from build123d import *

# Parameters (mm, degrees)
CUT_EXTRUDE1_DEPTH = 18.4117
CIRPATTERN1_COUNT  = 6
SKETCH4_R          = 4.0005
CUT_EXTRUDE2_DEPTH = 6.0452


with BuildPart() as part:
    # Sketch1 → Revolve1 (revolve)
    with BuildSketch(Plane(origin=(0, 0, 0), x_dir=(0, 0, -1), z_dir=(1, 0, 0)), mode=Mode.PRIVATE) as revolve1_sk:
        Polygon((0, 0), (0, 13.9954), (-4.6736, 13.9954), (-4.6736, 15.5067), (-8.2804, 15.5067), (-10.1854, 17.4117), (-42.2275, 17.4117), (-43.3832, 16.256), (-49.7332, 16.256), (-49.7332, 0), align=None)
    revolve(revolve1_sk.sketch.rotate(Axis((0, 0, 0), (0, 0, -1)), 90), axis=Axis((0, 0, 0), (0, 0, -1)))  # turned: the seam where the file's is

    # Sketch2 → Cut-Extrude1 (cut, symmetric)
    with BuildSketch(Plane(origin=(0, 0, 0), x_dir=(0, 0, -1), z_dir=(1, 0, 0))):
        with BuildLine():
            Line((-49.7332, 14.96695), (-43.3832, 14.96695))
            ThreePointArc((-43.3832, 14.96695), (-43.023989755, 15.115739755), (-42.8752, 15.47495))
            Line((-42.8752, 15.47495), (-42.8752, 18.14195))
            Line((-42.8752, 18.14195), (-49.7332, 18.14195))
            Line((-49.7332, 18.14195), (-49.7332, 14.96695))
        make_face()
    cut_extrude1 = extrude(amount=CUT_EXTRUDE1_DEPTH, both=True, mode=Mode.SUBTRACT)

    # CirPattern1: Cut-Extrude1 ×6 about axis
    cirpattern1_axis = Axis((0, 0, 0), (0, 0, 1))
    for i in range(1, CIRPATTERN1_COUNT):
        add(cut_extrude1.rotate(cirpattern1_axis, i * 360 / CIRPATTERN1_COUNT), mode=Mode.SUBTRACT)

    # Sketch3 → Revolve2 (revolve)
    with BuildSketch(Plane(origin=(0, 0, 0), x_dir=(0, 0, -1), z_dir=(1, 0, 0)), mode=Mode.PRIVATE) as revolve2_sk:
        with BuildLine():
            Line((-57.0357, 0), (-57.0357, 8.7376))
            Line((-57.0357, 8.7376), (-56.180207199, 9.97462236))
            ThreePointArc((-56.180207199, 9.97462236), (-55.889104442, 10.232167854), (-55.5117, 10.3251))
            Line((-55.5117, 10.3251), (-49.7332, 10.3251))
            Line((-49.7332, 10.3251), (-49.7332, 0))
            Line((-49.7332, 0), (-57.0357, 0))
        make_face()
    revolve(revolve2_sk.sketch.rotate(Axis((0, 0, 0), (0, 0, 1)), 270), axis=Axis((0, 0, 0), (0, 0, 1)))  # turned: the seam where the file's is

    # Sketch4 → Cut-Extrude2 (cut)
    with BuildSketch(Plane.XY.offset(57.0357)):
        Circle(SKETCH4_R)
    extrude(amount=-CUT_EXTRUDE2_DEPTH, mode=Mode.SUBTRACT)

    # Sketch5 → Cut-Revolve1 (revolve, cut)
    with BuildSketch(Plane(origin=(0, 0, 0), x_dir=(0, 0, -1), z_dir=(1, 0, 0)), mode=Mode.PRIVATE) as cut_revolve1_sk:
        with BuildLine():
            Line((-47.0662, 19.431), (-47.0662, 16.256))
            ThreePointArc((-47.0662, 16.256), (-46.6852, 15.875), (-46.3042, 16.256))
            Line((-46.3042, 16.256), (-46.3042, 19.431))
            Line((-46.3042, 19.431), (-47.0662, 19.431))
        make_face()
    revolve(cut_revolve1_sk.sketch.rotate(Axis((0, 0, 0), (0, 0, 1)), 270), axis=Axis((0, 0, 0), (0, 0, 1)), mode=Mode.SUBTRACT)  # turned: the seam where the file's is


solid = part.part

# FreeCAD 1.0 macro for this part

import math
import FreeCAD as App
import Part
import Sketcher

V = App.Vector
Q = App.Units.Quantity

doc = App.newDocument("Part")
params = doc.addObject("Spreadsheet::Sheet", "Params")
for row, (alias, value) in enumerate([
    ("sketch1_width", "0.64 in"),
    ("sketch1_height", "0.25 in"),
    ("sketch1_width2", "0.551 in"),
    ("sketch1_height2", "0.184 in"),
    ("sketch1_height3", "0.142 in"),
    ("revolution_angle", "360 deg"),
    ("sketch2_radius", "0.02 in"),
    ("sketch2_height", "0.25 in"),
    ("sketch2_width", "0.105 in"),
    ("pocket1_length", "36.8234 mm"),
    ("sketch3_radius", "0.032 in"),
    ("sketch3_width", "0.344 in"),
    ("revolution2_angle", "360 deg"),
    ("sketch4_diameter", "0.315 in"),
    ("pocket2_length", "0.238 in"),
    ("sketch5_radius", "0.015 in"),
    ("sketch5_width", "0.125 in"),
    ("groove_angle", "360 deg"),
], start=1):
    params.set(f"A{row}", alias)
    params.set(f"B{row}", "=" + value)
    params.setAlias(f"B{row}", alias)

body = doc.addObject("PartDesign::Body", "Body")

# Sketch on YZ plane
sketch1 = body.newObject("Sketcher::SketchObject", "Sketch")
sketch1.AttachmentSupport = (doc.getObject("YZ_Plane"), [""])
sketch1.MapMode = "FlatFace"
sketch1.addGeometry([
    Part.LineSegment(V(0, 0, 0), V(14, 0, 0)),  # 0
    Part.LineSegment(V(14, 0, 0), V(14, 4.7, 0)),  # 1
    Part.LineSegment(V(14, 4.7, 0), V(15.5, 4.7, 0)),  # 2
    Part.LineSegment(V(15.5, 4.7, 0), V(15.5, 8.3, 0)),  # 3
    Part.LineSegment(V(15.5, 8.3, 0), V(17.4, 10.2, 0)),  # 4
    Part.LineSegment(V(17.4, 10.2, 0), V(17.4, 42.2, 0)),  # 5
    Part.LineSegment(V(17.4, 42.2, 0), V(16.3, 43.4, 0)),  # 6
    Part.LineSegment(V(16.3, 43.4, 0), V(16.3, 49.7, 0)),  # 7
    Part.LineSegment(V(16.3, 49.7, 0), V(0, 49.7, 0)),  # 8
    Part.LineSegment(V(0, 49.7, 0), V(0, 0, 0)),  # 9
], False)
sketch1.addConstraint([
    Sketcher.Constraint("Coincident", 0, 2, 1, 1),
    Sketcher.Constraint("Coincident", 1, 2, 2, 1),
    Sketcher.Constraint("Coincident", 2, 2, 3, 1),
    Sketcher.Constraint("Coincident", 3, 2, 4, 1),
    Sketcher.Constraint("Coincident", 4, 2, 5, 1),
    Sketcher.Constraint("Coincident", 5, 2, 6, 1),
    Sketcher.Constraint("Coincident", 6, 2, 7, 1),
    Sketcher.Constraint("Coincident", 7, 2, 8, 1),
    Sketcher.Constraint("Coincident", 8, 2, 9, 1),
    Sketcher.Constraint("Coincident", 9, 2, 0, 1),
    Sketcher.Constraint("Horizontal", 0),
    Sketcher.Constraint("Vertical", 1),
    Sketcher.Constraint("Horizontal", 2),
    Sketcher.Constraint("Vertical", 3),
    Sketcher.Constraint("Vertical", 5),
    Sketcher.Constraint("Vertical", 7),
    Sketcher.Constraint("Horizontal", 8),
    Sketcher.Constraint("Vertical", 9),
    Sketcher.Constraint("Coincident", 9, 2, -1, 1),
    Sketcher.Constraint("Perpendicular", 4, 6),
    Sketcher.Constraint("Angle", 4, Q("45 deg")),
    Sketcher.Constraint("DistanceX", 8, 2, 8, 1, Q("0.64 in")),
    Sketcher.Constraint("DistanceY", 7, 1, 7, 2, Q("0.25 in")),
    Sketcher.Constraint("DistanceX", 0, 1, 0, 2, Q("0.551 in")),
    Sketcher.Constraint("DistanceY", 1, 1, 1, 2, Q("0.184 in")),
    Sketcher.Constraint("DistanceY", 3, 1, 3, 2, Q("0.142 in")),
    Sketcher.Constraint("DistanceY", 9, 2, 9, 1, Q("1.958 in")),
    Sketcher.Constraint("DistanceX", 2, 1, 2, 2, Q("0.0595 in")),
    Sketcher.Constraint("DistanceY", 5, 1, 5, 2, Q("1.2615 in")),
])
sketch1.setExpression("Constraints[21]", "Params.sketch1_width")
sketch1.setExpression("Constraints[22]", "Params.sketch1_height")
sketch1.setExpression("Constraints[23]", "Params.sketch1_width2")
sketch1.setExpression("Constraints[24]", "Params.sketch1_height2")
sketch1.setExpression("Constraints[25]", "Params.sketch1_height3")
revolution = body.newObject("PartDesign::Revolution", "Revolution")
revolution.Profile = sketch1
revolution.ReferenceAxis = (sketch1, ["V_Axis"])
revolution.setExpression("Angle", "Params.revolution_angle")

# Sketch on YZ plane
sketch2 = body.newObject("Sketcher::SketchObject", "Sketch001")
sketch2.AttachmentSupport = (doc.getObject("YZ_Plane"), [""])
sketch2.MapMode = "FlatFace"
sketch2.addGeometry([
    Part.LineSegment(V(15, 49.7, 0), V(15, 43.4, 0)),  # 0
    Part.ArcOfCircle(Part.Circle(V(15.5, 43.4, 0), V(0, 0, 1), 0.5), math.radians(180), math.radians(270)),  # 1
    Part.LineSegment(V(15.5, 42.9, 0), V(18.1, 42.9, 0)),  # 2
    Part.LineSegment(V(18.1, 42.9, 0), V(18.1, 49.7, 0)),  # 3
    Part.LineSegment(V(18.1, 49.7, 0), V(15, 49.7, 0)),  # 4
], False)
sketch2.addConstraint([
    Sketcher.Constraint("Tangent", 0, 2, 1, 1),
    Sketcher.Constraint("Tangent", 1, 2, 2, 1),
    Sketcher.Constraint("Coincident", 2, 2, 3, 1),
    Sketcher.Constraint("Coincident", 3, 2, 4, 1),
    Sketcher.Constraint("Coincident", 4, 2, 0, 1),
    Sketcher.Constraint("Vertical", 0),
    Sketcher.Constraint("Horizontal", 2),
    Sketcher.Constraint("Vertical", 3),
    Sketcher.Constraint("Horizontal", 4),
    Sketcher.Constraint("Radius", 1, Q("0.02 in")),
    Sketcher.Constraint("DistanceY", 0, 2, 0, 1, Q("0.25 in")),
    Sketcher.Constraint("DistanceX", 2, 1, 2, 2, Q("0.105 in")),
    Sketcher.Constraint("DistanceY", -1, 1, 1, 3, Q("1.708 in")),
    Sketcher.Constraint("DistanceX", -1, 1, 1, 3, 15.47495),
])
sketch2.setExpression("Constraints[9]", "Params.sketch2_radius")
sketch2.setExpression("Constraints[10]", "Params.sketch2_height")
sketch2.setExpression("Constraints[11]", "Params.sketch2_width")
pocket1 = body.newObject("PartDesign::Pocket", "Pocket")
pocket1.Profile = sketch2
pocket1.setExpression("Length", "Params.pocket1_length")
pocket1.Midplane = True
doc.recompute()

polarpattern = body.newObject("PartDesign::PolarPattern", "PolarPattern")
polarpattern.Originals = [pocket1]
polarpattern.Axis = (doc.getObject("Z_Axis"), [""])
polarpattern.Angle = 360
polarpattern.Occurrences = 6
body.Tip = polarpattern

# Sketch on YZ plane
sketch3 = body.newObject("Sketcher::SketchObject", "Sketch002")
sketch3.AttachmentSupport = (doc.getObject("YZ_Plane"), [""])
sketch3.MapMode = "FlatFace"
sketch3.addGeometry([
    Part.LineSegment(V(8.7, 57, 0), V(0, 57, 0)),  # 0
    Part.LineSegment(V(0, 57, 0), V(0, 49.7, 0)),  # 1
    Part.LineSegment(V(0, 49.7, 0), V(10.3, 49.7, 0)),  # 2
    Part.LineSegment(V(10.3, 49.7, 0), V(10.3, 55.5, 0)),  # 3
    Part.ArcOfCircle(Part.Circle(V(9.5, 55.5, 0), V(0, 0, 1), 0.8), math.radians(0), math.radians(55)),  # 4
    Part.LineSegment(V(10, 56.2, 0), V(8.7, 57, 0)),  # 5
], False)
sketch3.addConstraint([
    Sketcher.Constraint("Coincident", 0, 2, 1, 1),
    Sketcher.Constraint("Coincident", 1, 2, 2, 1),
    Sketcher.Constraint("Coincident", 2, 2, 3, 1),
    Sketcher.Constraint("Tangent", 3, 2, 4, 1),
    Sketcher.Constraint("Tangent", 4, 2, 5, 1),
    Sketcher.Constraint("Coincident", 5, 2, 0, 1),
    Sketcher.Constraint("Horizontal", 0),
    Sketcher.Constraint("Vertical", 1),
    Sketcher.Constraint("Horizontal", 2),
    Sketcher.Constraint("Vertical", 3),
    Sketcher.Constraint("PointOnObject", 0, 2, -2),
    Sketcher.Constraint("Radius", 4, Q("0.032 in")),
    Sketcher.Constraint("DistanceX", 0, 2, 0, 1, Q("0.344 in")),
    Sketcher.Constraint("DistanceY", 4, 3, 0, 2, Q("0.06 in")),
    Sketcher.Constraint("DistanceX", 2, 1, 2, 2, Q("0.4065 in")),
    Sketcher.Constraint("DistanceY", 1, 2, 1, 1, Q("0.2875 in")),
    Sketcher.Constraint("DistanceY", -1, 1, 1, 2, Q("1.958 in")),
])
sketch3.setExpression("Constraints[11]", "Params.sketch3_radius")
sketch3.setExpression("Constraints[12]", "Params.sketch3_width")
revolution2 = body.newObject("PartDesign::Revolution", "Revolution001")
revolution2.Profile = sketch3
revolution2.ReferenceAxis = (sketch3, ["V_Axis"])
revolution2.setExpression("Angle", "Params.revolution2_angle")

# Sketch on XY plane
sketch4 = body.newObject("Sketcher::SketchObject", "Sketch003")
sketch4.AttachmentSupport = (doc.getObject("XY_Plane"), [""])
sketch4.MapMode = "FlatFace"
sketch4.AttachmentOffset = App.Placement(V(0, 0, 2.2455 * 25.4), App.Rotation())
sketch4.addGeometry(Part.Circle(V(0, 0, 0), V(0, 0, 1), 4), False)
sketch4.addConstraint([
    Sketcher.Constraint("Coincident", 0, 3, -1, 1),
    Sketcher.Constraint("Diameter", 0, Q("0.315 in")),
])
sketch4.setExpression("Constraints[1]", "Params.sketch4_diameter")
pocket2 = body.newObject("PartDesign::Pocket", "Pocket001")
pocket2.Profile = sketch4
pocket2.setExpression("Length", "Params.pocket2_length")

# Sketch on YZ plane
sketch5 = body.newObject("Sketcher::SketchObject", "Sketch004")
sketch5.AttachmentSupport = (doc.getObject("YZ_Plane"), [""])
sketch5.MapMode = "FlatFace"
sketch5.addGeometry([
    Part.LineSegment(V(19.43, 47.07, 0), V(16.26, 47.07, 0)),
    Part.ArcOfCircle(Part.Circle(V(16.26, 46.69, 0), V(0, 0, 1), 0.38), math.radians(90), math.radians(270)),
    Part.LineSegment(V(16.26, 46.3, 0), V(19.43, 46.3, 0)),
    Part.LineSegment(V(19.43, 46.3, 0), V(19.43, 47.07, 0)),
], False)
sketch5.addConstraint([
    Sketcher.Constraint("Tangent", 0, 2, 1, 1),
    Sketcher.Constraint("Tangent", 1, 2, 2, 1),
    Sketcher.Constraint("Coincident", 2, 2, 3, 1),
    Sketcher.Constraint("Coincident", 3, 2, 0, 1),
    Sketcher.Constraint("Horizontal", 0),
    Sketcher.Constraint("Horizontal", 2),
    Sketcher.Constraint("Vertical", 3),
    Sketcher.Constraint("Radius", 1, Q("0.015 in")),
    Sketcher.Constraint("DistanceX", 0, 2, 0, 1, Q("0.125 in")),
    Sketcher.Constraint("DistanceX", -1, 1, 1, 3, Q("0.64 in")),
    Sketcher.Constraint("DistanceY", -1, 1, 1, 3, Q("1.838 in")),
])
sketch5.setExpression("Constraints[7]", "Params.sketch5_radius")
sketch5.setExpression("Constraints[8]", "Params.sketch5_width")
groove = body.newObject("PartDesign::Groove", "Groove")
groove.Profile = sketch5
groove.ReferenceAxis = (sketch5, ["V_Axis"])
groove.setExpression("Angle", "Params.groove_angle")

doc.recompute()
